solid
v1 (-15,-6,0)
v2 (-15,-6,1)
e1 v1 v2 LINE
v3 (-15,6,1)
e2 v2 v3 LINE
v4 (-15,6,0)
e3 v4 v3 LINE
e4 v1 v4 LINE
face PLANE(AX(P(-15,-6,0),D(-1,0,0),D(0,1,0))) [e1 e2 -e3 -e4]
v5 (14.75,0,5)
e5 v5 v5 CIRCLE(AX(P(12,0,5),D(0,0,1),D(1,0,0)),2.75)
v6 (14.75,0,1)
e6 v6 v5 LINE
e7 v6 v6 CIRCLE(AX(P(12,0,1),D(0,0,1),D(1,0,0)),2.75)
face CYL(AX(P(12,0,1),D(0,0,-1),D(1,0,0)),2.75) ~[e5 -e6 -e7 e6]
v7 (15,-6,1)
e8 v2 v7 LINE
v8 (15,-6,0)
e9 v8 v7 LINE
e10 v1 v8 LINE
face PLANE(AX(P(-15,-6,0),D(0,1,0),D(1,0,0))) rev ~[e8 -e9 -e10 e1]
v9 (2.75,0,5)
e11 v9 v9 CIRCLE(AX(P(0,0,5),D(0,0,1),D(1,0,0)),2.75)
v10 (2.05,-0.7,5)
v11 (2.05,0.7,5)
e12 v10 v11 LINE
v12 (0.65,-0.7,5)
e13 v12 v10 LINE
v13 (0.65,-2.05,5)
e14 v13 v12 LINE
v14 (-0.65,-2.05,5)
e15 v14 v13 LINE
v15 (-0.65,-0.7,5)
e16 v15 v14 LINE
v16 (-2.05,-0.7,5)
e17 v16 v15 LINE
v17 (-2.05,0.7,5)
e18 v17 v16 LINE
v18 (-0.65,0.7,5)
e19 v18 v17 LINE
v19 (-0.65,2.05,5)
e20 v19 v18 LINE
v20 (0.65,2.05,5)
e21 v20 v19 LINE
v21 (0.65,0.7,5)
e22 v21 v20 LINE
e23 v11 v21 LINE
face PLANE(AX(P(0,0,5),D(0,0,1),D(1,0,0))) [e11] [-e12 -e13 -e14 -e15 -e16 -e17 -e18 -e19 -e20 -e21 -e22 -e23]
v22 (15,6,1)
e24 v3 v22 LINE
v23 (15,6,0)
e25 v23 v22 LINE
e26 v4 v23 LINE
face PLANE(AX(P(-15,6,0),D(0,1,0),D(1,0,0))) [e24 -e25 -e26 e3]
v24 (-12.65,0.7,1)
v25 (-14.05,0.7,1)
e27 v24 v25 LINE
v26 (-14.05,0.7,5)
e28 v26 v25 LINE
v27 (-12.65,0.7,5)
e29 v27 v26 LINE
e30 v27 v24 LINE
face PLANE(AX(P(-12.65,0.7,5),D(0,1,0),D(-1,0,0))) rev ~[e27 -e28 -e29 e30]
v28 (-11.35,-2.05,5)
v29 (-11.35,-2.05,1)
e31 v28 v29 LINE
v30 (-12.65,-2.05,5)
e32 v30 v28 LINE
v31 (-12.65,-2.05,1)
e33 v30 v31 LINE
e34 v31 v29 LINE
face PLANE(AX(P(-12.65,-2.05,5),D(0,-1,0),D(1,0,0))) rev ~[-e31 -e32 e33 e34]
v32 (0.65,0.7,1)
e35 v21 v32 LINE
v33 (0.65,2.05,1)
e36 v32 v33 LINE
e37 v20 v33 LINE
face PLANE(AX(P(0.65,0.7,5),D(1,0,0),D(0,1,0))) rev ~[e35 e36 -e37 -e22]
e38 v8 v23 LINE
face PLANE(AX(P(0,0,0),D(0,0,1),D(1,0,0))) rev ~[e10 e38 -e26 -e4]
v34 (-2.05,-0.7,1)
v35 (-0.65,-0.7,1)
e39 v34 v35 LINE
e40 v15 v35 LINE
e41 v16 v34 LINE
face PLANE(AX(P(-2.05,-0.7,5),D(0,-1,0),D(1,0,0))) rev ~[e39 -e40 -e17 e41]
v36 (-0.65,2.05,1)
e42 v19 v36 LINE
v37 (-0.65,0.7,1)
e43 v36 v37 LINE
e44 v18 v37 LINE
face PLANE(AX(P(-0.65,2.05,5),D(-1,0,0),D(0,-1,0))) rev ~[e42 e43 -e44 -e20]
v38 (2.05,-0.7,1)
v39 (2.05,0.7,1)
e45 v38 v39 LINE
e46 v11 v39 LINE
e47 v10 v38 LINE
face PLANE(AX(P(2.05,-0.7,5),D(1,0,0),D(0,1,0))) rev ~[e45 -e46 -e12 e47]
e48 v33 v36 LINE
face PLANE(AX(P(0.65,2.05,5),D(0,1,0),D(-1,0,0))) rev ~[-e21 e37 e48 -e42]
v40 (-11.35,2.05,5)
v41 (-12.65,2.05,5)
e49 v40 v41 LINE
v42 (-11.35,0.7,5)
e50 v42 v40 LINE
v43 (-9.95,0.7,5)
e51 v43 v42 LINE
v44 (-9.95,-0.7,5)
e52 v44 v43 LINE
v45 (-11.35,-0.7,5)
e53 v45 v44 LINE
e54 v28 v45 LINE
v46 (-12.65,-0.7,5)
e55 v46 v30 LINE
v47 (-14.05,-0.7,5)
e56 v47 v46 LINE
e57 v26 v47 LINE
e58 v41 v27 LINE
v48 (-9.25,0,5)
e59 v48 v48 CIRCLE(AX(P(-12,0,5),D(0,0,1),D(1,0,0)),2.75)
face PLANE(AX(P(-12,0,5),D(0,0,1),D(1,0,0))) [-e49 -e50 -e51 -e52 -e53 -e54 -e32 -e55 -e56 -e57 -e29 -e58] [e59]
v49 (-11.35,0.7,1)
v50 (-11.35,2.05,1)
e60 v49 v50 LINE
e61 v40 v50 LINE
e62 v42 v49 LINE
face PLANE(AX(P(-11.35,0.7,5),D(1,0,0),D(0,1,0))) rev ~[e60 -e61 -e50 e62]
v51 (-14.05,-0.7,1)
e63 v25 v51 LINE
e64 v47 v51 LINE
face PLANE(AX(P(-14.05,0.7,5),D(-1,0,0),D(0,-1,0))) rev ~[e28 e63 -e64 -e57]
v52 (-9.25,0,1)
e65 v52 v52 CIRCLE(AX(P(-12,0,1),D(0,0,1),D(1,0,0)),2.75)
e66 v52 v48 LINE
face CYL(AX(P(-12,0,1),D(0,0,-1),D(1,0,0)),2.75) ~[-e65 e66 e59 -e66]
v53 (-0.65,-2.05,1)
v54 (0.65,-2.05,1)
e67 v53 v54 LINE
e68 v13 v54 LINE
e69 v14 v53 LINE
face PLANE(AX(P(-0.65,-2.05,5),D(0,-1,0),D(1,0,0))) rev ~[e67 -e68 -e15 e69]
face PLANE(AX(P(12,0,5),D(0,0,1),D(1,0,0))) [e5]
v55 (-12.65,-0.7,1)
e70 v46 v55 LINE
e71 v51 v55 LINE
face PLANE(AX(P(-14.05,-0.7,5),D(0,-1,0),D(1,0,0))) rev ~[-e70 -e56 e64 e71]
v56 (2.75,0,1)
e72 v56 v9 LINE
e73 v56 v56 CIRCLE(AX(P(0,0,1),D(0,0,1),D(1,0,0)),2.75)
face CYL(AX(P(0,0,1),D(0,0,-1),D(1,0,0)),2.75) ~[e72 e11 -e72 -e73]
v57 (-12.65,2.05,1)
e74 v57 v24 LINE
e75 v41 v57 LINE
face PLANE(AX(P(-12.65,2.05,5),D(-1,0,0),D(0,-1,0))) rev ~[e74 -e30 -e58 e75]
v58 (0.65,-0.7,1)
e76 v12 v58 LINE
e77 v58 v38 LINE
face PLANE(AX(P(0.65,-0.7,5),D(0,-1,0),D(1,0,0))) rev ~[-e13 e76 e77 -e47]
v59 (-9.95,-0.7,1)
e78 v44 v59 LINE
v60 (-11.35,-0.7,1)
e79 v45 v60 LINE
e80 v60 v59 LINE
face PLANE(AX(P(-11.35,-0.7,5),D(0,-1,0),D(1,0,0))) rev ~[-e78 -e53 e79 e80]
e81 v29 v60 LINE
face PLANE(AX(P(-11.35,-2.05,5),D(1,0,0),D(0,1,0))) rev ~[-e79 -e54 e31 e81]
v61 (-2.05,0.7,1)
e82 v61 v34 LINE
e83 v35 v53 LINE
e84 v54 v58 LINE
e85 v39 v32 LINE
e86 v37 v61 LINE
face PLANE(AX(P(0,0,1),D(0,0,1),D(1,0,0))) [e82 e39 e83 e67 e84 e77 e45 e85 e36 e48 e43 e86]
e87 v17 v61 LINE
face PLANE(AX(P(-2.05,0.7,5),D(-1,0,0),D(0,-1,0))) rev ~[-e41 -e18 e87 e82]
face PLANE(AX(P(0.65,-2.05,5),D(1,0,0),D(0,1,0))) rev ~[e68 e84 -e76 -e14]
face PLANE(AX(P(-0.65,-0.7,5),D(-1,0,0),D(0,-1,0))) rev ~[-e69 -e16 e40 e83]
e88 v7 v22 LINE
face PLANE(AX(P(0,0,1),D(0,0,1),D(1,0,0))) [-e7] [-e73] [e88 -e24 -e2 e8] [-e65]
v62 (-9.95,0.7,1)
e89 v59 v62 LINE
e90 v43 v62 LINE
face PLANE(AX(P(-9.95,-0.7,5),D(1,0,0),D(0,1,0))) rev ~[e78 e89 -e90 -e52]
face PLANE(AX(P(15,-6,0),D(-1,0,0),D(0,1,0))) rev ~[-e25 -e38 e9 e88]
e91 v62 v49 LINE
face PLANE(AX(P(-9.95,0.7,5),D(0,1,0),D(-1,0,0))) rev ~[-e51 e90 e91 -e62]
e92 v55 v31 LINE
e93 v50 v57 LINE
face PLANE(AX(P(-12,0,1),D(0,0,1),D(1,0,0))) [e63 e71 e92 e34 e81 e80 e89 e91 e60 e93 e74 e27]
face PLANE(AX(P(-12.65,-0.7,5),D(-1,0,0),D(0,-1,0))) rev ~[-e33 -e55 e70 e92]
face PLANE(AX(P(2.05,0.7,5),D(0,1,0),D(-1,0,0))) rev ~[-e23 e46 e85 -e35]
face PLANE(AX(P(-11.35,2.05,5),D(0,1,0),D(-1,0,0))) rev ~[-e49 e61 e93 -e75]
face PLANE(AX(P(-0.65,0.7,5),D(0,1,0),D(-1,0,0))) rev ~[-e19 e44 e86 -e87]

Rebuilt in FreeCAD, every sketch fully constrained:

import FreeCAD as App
import Part
import Sketcher
from FreeCAD import Vector


def add_polygon(sketch, points):
    """Adds a closed chain of lines whose ends are joined by coincident constraints."""
    first, n = sketch.GeometryCount, len(points)
    for a, b in zip(points, points[1:] + points[:1]):
        sketch.addGeometry(Part.LineSegment(App.Vector(*a, 0), App.Vector(*b, 0)), False)
    for i in range(n):
        sketch.addConstraint(Sketcher.Constraint("Coincident", first + i, 2, first + (i + 1) % n, 1))

doc = App.newDocument("Part")
body = doc.addObject("PartDesign::Body", "Body")

sketch1 = body.newObject("Sketcher::SketchObject", "Sketch")
sketch1.AttachmentSupport = (doc.getObject("XY_Plane"), [""])
sketch1.MapMode = "FlatFace"
add_polygon(sketch1, [(-15, 6), (-15, -6), (15, -6), (15, 6)])
sketch1.addConstraint(Sketcher.Constraint("Vertical", 0))
sketch1.addConstraint(Sketcher.Constraint("Horizontal", 1))
sketch1.addConstraint(Sketcher.Constraint("Vertical", 2))
sketch1.addConstraint(Sketcher.Constraint("Horizontal", 3))
sketch1.addConstraint(Sketcher.Constraint("Symmetric", 0, 2, 2, 2, -1, 1))
sketch1.addConstraint(Sketcher.Constraint("DistanceX", 1, 1, 1, 2, 30.0))
sketch1.addConstraint(Sketcher.Constraint("DistanceY", 0, 2, 0, 1, 12.0))
pad1 = body.newObject("PartDesign::Pad", "Pad")
pad1.Profile = sketch1
pad1.Length = 1

sketch2 = body.newObject("Sketcher::SketchObject", "Sketch001")
sketch2.AttachmentSupport = (doc.getObject("XY_Plane"), [""])
sketch2.MapMode = "FlatFace"
sketch2.AttachmentOffset = App.Placement(Vector(0, 0, 1), App.Rotation())
sketch2.addGeometry(Part.Circle(Vector(0, 0, 0), Vector(0, 0, 1), 2.8), False)
sketch2.addGeometry(Part.Circle(Vector(-12, 0, 0), Vector(0, 0, 1), 2.8), False)
sketch2.addGeometry(Part.Circle(Vector(12, 0, 0), Vector(0, 0, 1), 2.8), False)
sketch2.addConstraint(Sketcher.Constraint("Coincident", 0, 3, -1, 1))
sketch2.addConstraint(Sketcher.Constraint("Equal", 0, 1))
sketch2.addConstraint(Sketcher.Constraint("Equal", 1, 2))
sketch2.addConstraint(Sketcher.Constraint("Symmetric", 1, 3, 2, 3, -1, 1))
sketch2.addConstraint(Sketcher.Constraint("PointOnObject", 1, 3, -1))
sketch2.addConstraint(Sketcher.Constraint("Diameter", 0, 5.5))
sketch2.addConstraint(Sketcher.Constraint("DistanceX", 1, 3, -1, 1, 12.0))
pad2 = body.newObject("PartDesign::Pad", "Pad001")
pad2.Profile = sketch2
pad2.Length = 4

sketch3 = body.newObject("Sketcher::SketchObject", "Sketch002")
sketch3.AttachmentSupport = (doc.getObject("XY_Plane"), [""])
sketch3.MapMode = "FlatFace"
sketch3.AttachmentOffset = App.Placement(Vector(0, 0, 5), App.Rotation())
add_polygon(sketch3, [(-0.7, 2), (-0.7, 0.7), (-2, 0.7), (-2, -0.7), (-0.7, -0.7), (-0.7, -2), (0.7, -2), (0.7, -0.7), (2, -0.7), (2, 0.7), (0.7, 0.7), (0.7, 2)])
add_polygon(sketch3, [(-12.7, 2), (-12.7, 0.7), (-14.1, 0.7), (-14.1, -0.7), (-12.7, -0.7), (-12.7, -2), (-11.3, -2), (-11.3, -0.7), (-9.9, -0.7), (-9.9, 0.7), (-11.3, 0.7), (-11.3, 2)])
sketch3.addConstraint(Sketcher.Constraint("Vertical", 0))
sketch3.addConstraint(Sketcher.Constraint("Horizontal", 1))
sketch3.addConstraint(Sketcher.Constraint("Vertical", 2))
sketch3.addConstraint(Sketcher.Constraint("Horizontal", 3))
sketch3.addConstraint(Sketcher.Constraint("Vertical", 4))
sketch3.addConstraint(Sketcher.Constraint("Horizontal", 5))
sketch3.addConstraint(Sketcher.Constraint("Vertical", 6))
sketch3.addConstraint(Sketcher.Constraint("Horizontal", 7))
sketch3.addConstraint(Sketcher.Constraint("Vertical", 8))
sketch3.addConstraint(Sketcher.Constraint("Horizontal", 9))
sketch3.addConstraint(Sketcher.Constraint("Vertical", 10))
sketch3.addConstraint(Sketcher.Constraint("Horizontal", 11))
sketch3.addConstraint(Sketcher.Constraint("Vertical", 12))
sketch3.addConstraint(Sketcher.Constraint("Horizontal", 13))
sketch3.addConstraint(Sketcher.Constraint("Vertical", 14))
sketch3.addConstraint(Sketcher.Constraint("Horizontal", 15))
sketch3.addConstraint(Sketcher.Constraint("Vertical", 16))
sketch3.addConstraint(Sketcher.Constraint("Horizontal", 17))
sketch3.addConstraint(Sketcher.Constraint("Vertical", 18))
sketch3.addConstraint(Sketcher.Constraint("Horizontal", 19))
sketch3.addConstraint(Sketcher.Constraint("Vertical", 20))
sketch3.addConstraint(Sketcher.Constraint("Horizontal", 21))
sketch3.addConstraint(Sketcher.Constraint("Vertical", 22))
sketch3.addConstraint(Sketcher.Constraint("Horizontal", 23))
sketch3.addConstraint(Sketcher.Constraint("Symmetric", 0, 2, 6, 2, -1, 1))
sketch3.addConstraint(Sketcher.Constraint("Symmetric", 2, 2, 8, 2, -1, 1))
sketch3.addConstraint(Sketcher.Constraint("Symmetric", 4, 2, 10, 2, -1, 1))
sketch3.addConstraint(Sketcher.Constraint("Symmetric", 3, 2, 6, 2, -2))
sketch3.addConstraint(Sketcher.Constraint("Symmetric", 12, 2, 15, 2, -1))
sketch3.addConstraint(Sketcher.Constraint("Symmetric", 18, 2, 21, 2, -1))
sketch3.addConstraint(Sketcher.Constraint("Horizontal", 9, 2, 12, 2))
sketch3.addConstraint(Sketcher.Constraint("Horizontal", 5, 2, 16, 2))
sketch3.addConstraint(Sketcher.Constraint("Horizontal", 15, 2, 18, 2))
sketch3.addConstraint(Sketcher.Constraint("Horizontal", 11, 2, 22, 2))
sketch3.addConstraint(Sketcher.Constraint("Equal", 9, 13))
sketch3.addConstraint(Sketcher.Constraint("Equal", 11, 17))
sketch3.addConstraint(Sketcher.Constraint("Equal", 15, 19))
sketch3.addConstraint(Sketcher.Constraint("Equal", 21, 2))
sketch3.addConstraint(Sketcher.Constraint("DistanceX", 1, 2, 1, 1, 1.4))
sketch3.addConstraint(Sketcher.Constraint("DistanceX", 5, 1, 5, 2, 1.3))
sketch3.addConstraint(Sketcher.Constraint("DistanceX", 12, 2, 0, 2, 12.0))
sketch3.addConstraint(Sketcher.Constraint("DistanceY", 0, 2, 0, 1, 1.35))
pocket1 = body.newObject("PartDesign::Pocket", "Pocket")
pocket1.Profile = sketch3
pocket1.Length = 4

doc.recompute()
